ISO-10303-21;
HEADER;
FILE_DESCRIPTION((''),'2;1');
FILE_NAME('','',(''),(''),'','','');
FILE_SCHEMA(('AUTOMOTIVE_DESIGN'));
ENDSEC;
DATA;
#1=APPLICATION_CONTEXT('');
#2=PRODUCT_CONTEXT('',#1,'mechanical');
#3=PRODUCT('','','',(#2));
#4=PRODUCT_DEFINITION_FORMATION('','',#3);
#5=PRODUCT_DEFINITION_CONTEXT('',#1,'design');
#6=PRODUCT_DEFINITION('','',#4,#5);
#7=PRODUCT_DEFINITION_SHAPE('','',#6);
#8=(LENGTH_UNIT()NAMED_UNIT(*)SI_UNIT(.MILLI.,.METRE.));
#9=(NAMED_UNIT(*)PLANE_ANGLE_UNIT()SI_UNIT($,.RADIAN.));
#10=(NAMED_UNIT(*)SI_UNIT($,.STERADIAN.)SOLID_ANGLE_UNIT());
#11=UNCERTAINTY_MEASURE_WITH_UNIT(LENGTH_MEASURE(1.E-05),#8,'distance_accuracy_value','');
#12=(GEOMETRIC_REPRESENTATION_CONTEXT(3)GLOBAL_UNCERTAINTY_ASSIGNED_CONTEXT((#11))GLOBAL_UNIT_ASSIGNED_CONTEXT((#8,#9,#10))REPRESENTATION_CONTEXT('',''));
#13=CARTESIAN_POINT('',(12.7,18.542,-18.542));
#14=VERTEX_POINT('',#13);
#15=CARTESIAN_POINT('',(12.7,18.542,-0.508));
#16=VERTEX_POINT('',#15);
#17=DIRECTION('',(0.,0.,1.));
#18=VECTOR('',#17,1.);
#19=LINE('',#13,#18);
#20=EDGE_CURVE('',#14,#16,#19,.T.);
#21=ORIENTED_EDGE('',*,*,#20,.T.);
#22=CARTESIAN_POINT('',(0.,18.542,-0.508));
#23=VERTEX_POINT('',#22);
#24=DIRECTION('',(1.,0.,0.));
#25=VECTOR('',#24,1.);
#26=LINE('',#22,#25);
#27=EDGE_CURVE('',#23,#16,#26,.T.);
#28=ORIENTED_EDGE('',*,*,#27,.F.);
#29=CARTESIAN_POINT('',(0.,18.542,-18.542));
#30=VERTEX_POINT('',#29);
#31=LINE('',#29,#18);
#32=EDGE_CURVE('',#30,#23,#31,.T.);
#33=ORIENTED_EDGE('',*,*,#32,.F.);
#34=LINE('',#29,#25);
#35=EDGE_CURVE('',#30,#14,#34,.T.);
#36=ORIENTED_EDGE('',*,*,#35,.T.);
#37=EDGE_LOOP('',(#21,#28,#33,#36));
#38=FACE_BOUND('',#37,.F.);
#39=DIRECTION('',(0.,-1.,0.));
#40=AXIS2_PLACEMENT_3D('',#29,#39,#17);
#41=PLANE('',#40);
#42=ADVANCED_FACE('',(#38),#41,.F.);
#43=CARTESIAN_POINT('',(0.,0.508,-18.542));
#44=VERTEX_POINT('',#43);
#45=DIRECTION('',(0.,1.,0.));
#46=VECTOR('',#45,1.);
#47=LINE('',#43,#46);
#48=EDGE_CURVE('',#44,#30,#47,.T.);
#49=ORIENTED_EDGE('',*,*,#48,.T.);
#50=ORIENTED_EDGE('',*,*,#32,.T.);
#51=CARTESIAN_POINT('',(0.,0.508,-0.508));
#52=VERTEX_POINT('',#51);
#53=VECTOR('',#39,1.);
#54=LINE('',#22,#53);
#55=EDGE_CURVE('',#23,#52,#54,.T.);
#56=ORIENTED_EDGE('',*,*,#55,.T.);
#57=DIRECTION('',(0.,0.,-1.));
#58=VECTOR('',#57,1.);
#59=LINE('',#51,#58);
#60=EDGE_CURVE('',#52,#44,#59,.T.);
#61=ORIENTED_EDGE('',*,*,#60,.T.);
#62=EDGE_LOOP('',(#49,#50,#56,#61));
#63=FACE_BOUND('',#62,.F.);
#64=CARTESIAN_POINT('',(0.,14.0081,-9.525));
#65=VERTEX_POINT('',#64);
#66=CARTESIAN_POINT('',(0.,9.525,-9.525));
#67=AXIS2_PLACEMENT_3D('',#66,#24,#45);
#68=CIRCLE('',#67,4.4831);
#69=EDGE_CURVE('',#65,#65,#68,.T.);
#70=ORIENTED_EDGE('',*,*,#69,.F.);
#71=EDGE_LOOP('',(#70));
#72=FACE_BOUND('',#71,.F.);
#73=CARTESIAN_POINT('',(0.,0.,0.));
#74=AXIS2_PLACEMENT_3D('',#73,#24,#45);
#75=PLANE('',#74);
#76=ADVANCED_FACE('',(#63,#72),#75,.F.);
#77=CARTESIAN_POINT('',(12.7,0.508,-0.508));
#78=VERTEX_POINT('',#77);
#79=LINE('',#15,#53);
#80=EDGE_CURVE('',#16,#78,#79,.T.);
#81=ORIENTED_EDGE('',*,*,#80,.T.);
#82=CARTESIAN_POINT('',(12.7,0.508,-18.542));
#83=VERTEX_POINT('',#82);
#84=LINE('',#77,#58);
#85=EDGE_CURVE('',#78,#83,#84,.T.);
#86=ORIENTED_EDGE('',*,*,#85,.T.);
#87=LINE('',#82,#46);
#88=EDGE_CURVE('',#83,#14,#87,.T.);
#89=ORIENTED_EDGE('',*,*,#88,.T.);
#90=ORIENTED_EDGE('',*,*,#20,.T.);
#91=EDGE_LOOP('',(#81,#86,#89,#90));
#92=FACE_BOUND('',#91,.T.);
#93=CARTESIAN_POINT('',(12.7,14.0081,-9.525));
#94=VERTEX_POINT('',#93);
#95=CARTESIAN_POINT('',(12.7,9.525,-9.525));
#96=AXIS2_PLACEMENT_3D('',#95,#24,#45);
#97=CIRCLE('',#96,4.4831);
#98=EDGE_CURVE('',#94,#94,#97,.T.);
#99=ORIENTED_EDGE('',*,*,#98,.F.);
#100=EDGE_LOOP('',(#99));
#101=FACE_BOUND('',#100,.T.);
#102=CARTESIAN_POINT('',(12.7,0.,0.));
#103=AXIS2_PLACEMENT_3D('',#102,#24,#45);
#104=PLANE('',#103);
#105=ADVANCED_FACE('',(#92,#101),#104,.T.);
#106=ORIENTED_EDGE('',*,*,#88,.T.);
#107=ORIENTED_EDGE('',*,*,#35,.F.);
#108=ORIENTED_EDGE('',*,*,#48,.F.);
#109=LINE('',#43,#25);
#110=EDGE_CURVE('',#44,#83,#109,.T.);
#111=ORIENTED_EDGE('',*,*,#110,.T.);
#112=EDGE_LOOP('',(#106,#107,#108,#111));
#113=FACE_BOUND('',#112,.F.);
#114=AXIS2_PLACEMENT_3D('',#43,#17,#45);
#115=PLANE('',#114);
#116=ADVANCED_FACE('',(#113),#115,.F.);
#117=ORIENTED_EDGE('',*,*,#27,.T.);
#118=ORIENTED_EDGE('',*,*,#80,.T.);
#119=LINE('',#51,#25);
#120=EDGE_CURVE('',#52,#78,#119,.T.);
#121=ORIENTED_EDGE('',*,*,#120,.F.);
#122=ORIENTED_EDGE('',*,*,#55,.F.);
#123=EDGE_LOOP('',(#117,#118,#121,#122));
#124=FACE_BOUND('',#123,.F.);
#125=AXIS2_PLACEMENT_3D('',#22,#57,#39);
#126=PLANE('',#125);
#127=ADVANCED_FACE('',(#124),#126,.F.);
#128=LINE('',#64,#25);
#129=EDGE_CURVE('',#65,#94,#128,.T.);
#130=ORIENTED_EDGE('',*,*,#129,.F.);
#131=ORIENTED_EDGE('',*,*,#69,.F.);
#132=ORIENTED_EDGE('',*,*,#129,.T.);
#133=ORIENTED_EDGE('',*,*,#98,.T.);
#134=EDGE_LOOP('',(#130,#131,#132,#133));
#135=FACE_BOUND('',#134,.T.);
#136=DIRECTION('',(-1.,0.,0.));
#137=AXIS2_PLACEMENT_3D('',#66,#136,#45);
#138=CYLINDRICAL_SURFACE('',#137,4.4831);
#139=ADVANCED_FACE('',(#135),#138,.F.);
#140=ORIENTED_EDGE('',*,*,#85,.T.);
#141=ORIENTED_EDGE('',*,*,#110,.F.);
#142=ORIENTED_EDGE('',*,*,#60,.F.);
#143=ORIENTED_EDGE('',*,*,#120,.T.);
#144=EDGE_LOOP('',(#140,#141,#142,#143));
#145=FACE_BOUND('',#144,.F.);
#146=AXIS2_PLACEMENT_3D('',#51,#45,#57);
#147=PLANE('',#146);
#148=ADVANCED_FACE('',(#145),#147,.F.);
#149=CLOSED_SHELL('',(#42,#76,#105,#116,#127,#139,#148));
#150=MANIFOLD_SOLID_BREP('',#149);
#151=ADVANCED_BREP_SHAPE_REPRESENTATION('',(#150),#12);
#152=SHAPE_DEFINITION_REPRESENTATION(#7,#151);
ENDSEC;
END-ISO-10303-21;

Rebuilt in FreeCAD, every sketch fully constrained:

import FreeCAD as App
import Part
import Sketcher
Q = App.Units.Quantity

doc = App.newDocument("Part")
body = doc.addObject("PartDesign::Body", "Body")

sketch1 = body.newObject("Sketcher::SketchObject", "Sketch")
sketch1.AttachmentSupport = (doc.getObject("YZ_Plane"), [""])
sketch1.MapMode = "FlatFace"
sketch1.addGeometry(Part.LineSegment(App.Vector(18.5, -18.5, 0), App.Vector(18.5, -0.5, 0)), False)
sketch1.addGeometry(Part.LineSegment(App.Vector(18.5, -0.5, 0), App.Vector(0.5, -0.5, 0)), False)
sketch1.addGeometry(Part.LineSegment(App.Vector(0.5, -0.5, 0), App.Vector(0.5, -18.5, 0)), False)
sketch1.addGeometry(Part.LineSegment(App.Vector(0.5, -18.5, 0), App.Vector(18.5, -18.5, 0)), False)
sketch1.addGeometry(Part.Circle(App.Vector(9.5, -9.5, 0), App.Vector(0, 0, 1), 4.5), False)
sketch1.addConstraint(Sketcher.Constraint("Coincident", 0, 2, 1, 1))
sketch1.addConstraint(Sketcher.Constraint("Coincident", 1, 2, 2, 1))
sketch1.addConstraint(Sketcher.Constraint("Coincident", 2, 2, 3, 1))
sketch1.addConstraint(Sketcher.Constraint("Coincident", 3, 2, 0, 1))
sketch1.addConstraint(Sketcher.Constraint("Vertical", 0))
sketch1.addConstraint(Sketcher.Constraint("Horizontal", 1))
sketch1.addConstraint(Sketcher.Constraint("Vertical", 2))
sketch1.addConstraint(Sketcher.Constraint("Horizontal", 3))
sketch1.addConstraint(Sketcher.Constraint("Equal", 3, 0))
sketch1.addConstraint(Sketcher.Constraint("Diameter", 4, Q("0.353 in")))
sketch1.addConstraint(Sketcher.Constraint("DistanceX", 1, 2, 1, 1, Q("0.71 in")))
sketch1.addConstraint(Sketcher.Constraint("DistanceX", -1, 1, 0, 2, Q("0.73 in")))
sketch1.addConstraint(Sketcher.Constraint("DistanceY", 0, 2, -1, 1, Q("0.02 in")))
sketch1.addConstraint(Sketcher.Constraint("DistanceX", -1, 1, 4, 3, Q("0.375 in")))
sketch1.addConstraint(Sketcher.Constraint("DistanceY", 4, 3, -1, 1, Q("0.375 in")))
pad1 = body.newObject("PartDesign::Pad", "Pad")
pad1.Profile = sketch1
pad1.Length = Q("0.5 in")

doc.recompute()
